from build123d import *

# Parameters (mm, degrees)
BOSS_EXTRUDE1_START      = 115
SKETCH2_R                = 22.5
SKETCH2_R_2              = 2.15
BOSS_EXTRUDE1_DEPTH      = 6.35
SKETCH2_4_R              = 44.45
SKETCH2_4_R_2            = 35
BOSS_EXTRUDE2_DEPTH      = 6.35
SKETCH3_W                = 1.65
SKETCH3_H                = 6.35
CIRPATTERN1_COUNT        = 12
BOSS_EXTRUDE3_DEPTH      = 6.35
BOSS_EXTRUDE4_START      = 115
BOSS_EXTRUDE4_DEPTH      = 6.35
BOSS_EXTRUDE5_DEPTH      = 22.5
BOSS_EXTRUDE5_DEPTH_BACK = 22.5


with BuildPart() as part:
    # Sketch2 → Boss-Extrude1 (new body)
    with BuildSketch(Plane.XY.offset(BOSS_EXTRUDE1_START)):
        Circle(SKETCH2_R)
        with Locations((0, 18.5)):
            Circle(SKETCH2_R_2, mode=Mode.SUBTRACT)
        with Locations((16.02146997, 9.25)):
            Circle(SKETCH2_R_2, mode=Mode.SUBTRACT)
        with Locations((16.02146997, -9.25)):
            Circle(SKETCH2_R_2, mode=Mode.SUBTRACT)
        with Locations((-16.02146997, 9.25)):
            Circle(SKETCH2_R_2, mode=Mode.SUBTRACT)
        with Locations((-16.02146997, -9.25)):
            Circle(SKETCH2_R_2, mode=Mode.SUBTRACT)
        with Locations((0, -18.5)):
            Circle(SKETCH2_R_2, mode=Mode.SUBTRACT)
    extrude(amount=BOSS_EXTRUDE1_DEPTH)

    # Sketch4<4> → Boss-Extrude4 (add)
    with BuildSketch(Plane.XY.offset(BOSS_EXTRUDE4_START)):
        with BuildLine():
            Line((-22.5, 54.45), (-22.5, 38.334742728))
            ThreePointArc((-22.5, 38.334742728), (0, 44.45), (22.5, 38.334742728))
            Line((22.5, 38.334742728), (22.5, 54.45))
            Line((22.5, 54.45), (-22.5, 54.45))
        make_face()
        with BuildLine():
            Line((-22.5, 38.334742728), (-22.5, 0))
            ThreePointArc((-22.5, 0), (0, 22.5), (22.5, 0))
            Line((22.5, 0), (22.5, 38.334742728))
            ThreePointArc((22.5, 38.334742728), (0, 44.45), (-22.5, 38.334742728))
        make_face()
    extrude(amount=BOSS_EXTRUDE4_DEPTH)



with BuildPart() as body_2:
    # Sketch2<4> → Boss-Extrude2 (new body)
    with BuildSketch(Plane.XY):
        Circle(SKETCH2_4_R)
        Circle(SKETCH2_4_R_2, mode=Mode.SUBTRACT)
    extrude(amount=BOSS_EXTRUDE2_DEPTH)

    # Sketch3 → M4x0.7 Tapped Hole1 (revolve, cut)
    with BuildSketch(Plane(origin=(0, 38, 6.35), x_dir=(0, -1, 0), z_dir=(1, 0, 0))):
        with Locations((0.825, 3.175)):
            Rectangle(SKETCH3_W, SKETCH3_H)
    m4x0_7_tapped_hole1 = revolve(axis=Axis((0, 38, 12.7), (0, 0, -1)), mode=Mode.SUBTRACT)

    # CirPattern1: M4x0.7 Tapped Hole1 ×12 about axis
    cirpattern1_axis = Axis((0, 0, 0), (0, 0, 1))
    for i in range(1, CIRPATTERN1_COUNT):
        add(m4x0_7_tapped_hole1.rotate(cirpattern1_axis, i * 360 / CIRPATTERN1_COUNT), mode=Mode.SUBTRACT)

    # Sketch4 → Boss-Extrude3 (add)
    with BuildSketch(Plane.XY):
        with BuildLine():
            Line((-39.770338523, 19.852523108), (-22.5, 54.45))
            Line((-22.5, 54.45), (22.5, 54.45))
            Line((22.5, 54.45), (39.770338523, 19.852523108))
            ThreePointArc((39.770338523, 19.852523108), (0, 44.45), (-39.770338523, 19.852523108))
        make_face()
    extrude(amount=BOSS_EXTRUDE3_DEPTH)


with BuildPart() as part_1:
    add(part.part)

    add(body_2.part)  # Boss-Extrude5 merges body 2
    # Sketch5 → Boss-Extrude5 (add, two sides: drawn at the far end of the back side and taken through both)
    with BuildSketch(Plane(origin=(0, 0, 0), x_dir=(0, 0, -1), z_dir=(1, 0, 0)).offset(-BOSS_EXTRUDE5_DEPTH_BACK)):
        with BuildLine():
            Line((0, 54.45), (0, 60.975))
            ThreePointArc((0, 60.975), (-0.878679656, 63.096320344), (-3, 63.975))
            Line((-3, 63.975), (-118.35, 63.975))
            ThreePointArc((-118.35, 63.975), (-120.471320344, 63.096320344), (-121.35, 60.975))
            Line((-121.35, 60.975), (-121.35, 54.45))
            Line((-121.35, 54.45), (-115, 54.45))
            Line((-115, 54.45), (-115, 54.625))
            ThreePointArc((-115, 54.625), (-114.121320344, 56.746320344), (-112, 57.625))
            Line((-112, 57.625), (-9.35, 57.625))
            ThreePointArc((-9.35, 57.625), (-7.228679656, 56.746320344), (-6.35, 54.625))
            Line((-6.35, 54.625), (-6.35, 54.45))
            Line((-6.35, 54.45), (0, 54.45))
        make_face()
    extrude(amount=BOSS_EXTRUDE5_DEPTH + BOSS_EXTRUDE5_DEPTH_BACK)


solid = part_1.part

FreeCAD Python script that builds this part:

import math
import FreeCAD as App
import Part
import Sketcher
from FreeCAD import Vector
Q = App.Units.Quantity


def add_polygon(sketch, points):
    """Adds a closed chain of lines whose ends are joined by coincident constraints."""
    first, n = sketch.GeometryCount, len(points)
    for a, b in zip(points, points[1:] + points[:1]):
        sketch.addGeometry(Part.LineSegment(App.Vector(*a, 0), App.Vector(*b, 0)), False)
    for i in range(n):
        sketch.addConstraint(Sketcher.Constraint("Coincident", first + i, 2, first + (i + 1) % n, 1))

doc = App.newDocument("Part")
body = doc.addObject("PartDesign::Body", "Body")

sketch1 = doc.addObject("Sketcher::SketchObject", "Sketch")
body.addObject(sketch1)
sketch1.AttachmentSupport = (doc.XY_Plane, [""])
sketch1.MapMode = "FlatFace"
sketch1.AttachmentOffset = App.Placement(Vector(0, 0, 115), App.Rotation())
sketch1.addGeometry(Part.Circle(Vector(0, 0, 0), Vector(0, 0, 1), 22.5), False)
sketch1.addGeometry(Part.Circle(Vector(-16, -9.2, 0), Vector(0, 0, 1), 2.1), False)
sketch1.addGeometry(Part.Circle(Vector(0, -18.5, 0), Vector(0, 0, 1), 2.1), False)
sketch1.addGeometry(Part.Circle(Vector(16, -9.2, 0), Vector(0, 0, 1), 2.1), False)
sketch1.addGeometry(Part.Circle(Vector(-16, 9.2, 0), Vector(0, 0, 1), 2.1), False)
sketch1.addGeometry(Part.Circle(Vector(16, 9.2, 0), Vector(0, 0, 1), 2.1), False)
sketch1.addGeometry(Part.Circle(Vector(0, 18.5, 0), Vector(0, 0, 1), 2.1), False)
sketch1.addConstraint(Sketcher.Constraint("Coincident", 0, 3, -1, 1))
sketch1.addConstraint(Sketcher.Constraint("Equal", 1, 2))
sketch1.addConstraint(Sketcher.Constraint("Equal", 2, 3))
sketch1.addConstraint(Sketcher.Constraint("Equal", 3, 4))
sketch1.addConstraint(Sketcher.Constraint("Equal", 4, 5))
sketch1.addConstraint(Sketcher.Constraint("Equal", 5, 6))
sketch1.addConstraint(Sketcher.Constraint("Symmetric", 3, 3, 4, 3, -1, 1))
sketch1.addConstraint(Sketcher.Constraint("Symmetric", 1, 3, 5, 3, -1, 1))
sketch1.addConstraint(Sketcher.Constraint("Symmetric", 2, 3, 6, 3, -1, 1))
sketch1.addConstraint(Sketcher.Constraint("Symmetric", 1, 3, 3, 3, -2))
sketch1.addConstraint(Sketcher.Constraint("PointOnObject", 2, 3, -2))
sketch1.addConstraint(Sketcher.Constraint("Diameter", 0, Q("45 mm")))
sketch1.addConstraint(Sketcher.Constraint("Diameter", 1, Q("4.3 mm")))
sketch1.addConstraint(Sketcher.Constraint("DistanceY", 2, 3, -1, 1, Q("18.5 mm")))
sketch1.addConstraint(Sketcher.Constraint("DistanceY", 1, 3, 4, 3, Q("18.5 mm")))
sketch1.addConstraint(Sketcher.Constraint("DistanceX", 1, 3, -1, 1, Q("16.02147 mm")))
pad1 = doc.addObject("PartDesign::Pad", "Pad")
body.addObject(pad1)
pad1.Profile = sketch1
pad1.Length = 6.35

sketch2 = doc.addObject("Sketcher::SketchObject", "Sketch001")
body.addObject(sketch2)
sketch2.AttachmentSupport = (doc.XY_Plane, [""])
sketch2.MapMode = "FlatFace"
sketch2.AttachmentOffset = App.Placement(Vector(0, 0, 115), App.Rotation())
sketch2.addGeometry(Part.LineSegment(Vector(-22, 54, 0), Vector(-22, 0, 0)), False)
sketch2.addGeometry(Part.ArcOfCircle(Part.Circle(Vector(0, 0, 0), Vector(0, 0, 1), 22), math.radians(0), math.radians(180)), False)
sketch2.addGeometry(Part.LineSegment(Vector(22, 0, 0), Vector(22, 54, 0)), False)
sketch2.addGeometry(Part.LineSegment(Vector(22, 54, 0), Vector(-22, 54, 0)), False)
sketch2.addConstraint(Sketcher.Constraint("Tangent", 0, 2, 1, 2))
sketch2.addConstraint(Sketcher.Constraint("Tangent", 1, 1, 2, 1))
sketch2.addConstraint(Sketcher.Constraint("Coincident", 2, 2, 3, 1))
sketch2.addConstraint(Sketcher.Constraint("Coincident", 3, 2, 0, 1))
sketch2.addConstraint(Sketcher.Constraint("Vertical", 0))
sketch2.addConstraint(Sketcher.Constraint("Vertical", 2))
sketch2.addConstraint(Sketcher.Constraint("Horizontal", 3))
sketch2.addConstraint(Sketcher.Constraint("Coincident", 1, 3, -1, 1))
sketch2.addConstraint(Sketcher.Constraint("Radius", 1, Q("22.5 mm")))
sketch2.addConstraint(Sketcher.Constraint("DistanceY", 0, 2, 0, 1, Q("54.45 mm")))
pad2 = doc.addObject("PartDesign::Pad", "Pad001")
body.addObject(pad2)
pad2.Profile = sketch2
pad2.Length = 6.35
body2 = doc.addObject("PartDesign::Body", "Body001")

sketch3 = doc.addObject("Sketcher::SketchObject", "Sketch002")
body2.addObject(sketch3)
sketch3.AttachmentSupport = (doc.getObject("XY_Plane001"), [""])
sketch3.MapMode = "FlatFace"
sketch3.addGeometry(Part.Circle(Vector(0, 0, 0), Vector(0, 0, 1), 44), False)
sketch3.addGeometry(Part.Circle(Vector(0, 0, 0), Vector(0, 0, 1), 35), False)
sketch3.addConstraint(Sketcher.Constraint("Coincident", 0, 3, -1, 1))
sketch3.addConstraint(Sketcher.Constraint("Coincident", 1, 3, -1, 1))
sketch3.addConstraint(Sketcher.Constraint("Diameter", 1, Q("70 mm")))
sketch3.addConstraint(Sketcher.Constraint("Diameter", 0, Q("88.9 mm")))
pad3 = doc.addObject("PartDesign::Pad", "Pad002")
body2.addObject(pad3)
pad3.Profile = sketch3
pad3.Length = 6.35

sketch4 = doc.addObject("Sketcher::SketchObject", "Sketch003")
body2.addObject(sketch4)
sketch4.AttachmentSupport = (doc.getObject("YZ_Plane001"), [""])
sketch4.MapMode = "FlatFace"
add_polygon(sketch4, [(38, 0), (38, 6.3), (36.4, 6.3), (36.4, 0)])
sketch4.addGeometry(Part.LineSegment(Vector(38, 6.3, 0), Vector(38, 0, 0)), True)
sketch4.addConstraint(Sketcher.Constraint("Vertical", 0))
sketch4.addConstraint(Sketcher.Constraint("Horizontal", 1))
sketch4.addConstraint(Sketcher.Constraint("Vertical", 2))
sketch4.addConstraint(Sketcher.Constraint("Horizontal", 3))
sketch4.addConstraint(Sketcher.Constraint("Vertical", 4))
sketch4.addConstraint(Sketcher.Constraint("Coincident", 4, 1, 0, 2))
sketch4.addConstraint(Sketcher.Constraint("PointOnObject", 2, 2, -1))
sketch4.addConstraint(Sketcher.Constraint("PointOnObject", 4, 2, -1))
sketch4.addConstraint(Sketcher.Constraint("DistanceX", -1, 1, 0, 2, Q("38 mm")))
sketch4.addConstraint(Sketcher.Constraint("DistanceX", 1, 2, 1, 1, Q("1.65 mm")))
sketch4.addConstraint(Sketcher.Constraint("DistanceY", 0, 1, 0, 2, Q("6.35 mm")))
groove = doc.addObject("PartDesign::Groove", "Groove")
body2.addObject(groove)
groove.Profile = sketch4
groove.ReferenceAxis = (sketch4, ["Axis0"])
groove.Angle = 360
doc.recompute()

polarpattern = doc.addObject("PartDesign::PolarPattern", "PolarPattern")
body2.addObject(polarpattern)
polarpattern.Originals = [groove]
polarpattern.Axis = (doc.getObject("Z_Axis001"), [""])
polarpattern.Angle = 360
polarpattern.Occurrences = 12
body2.Tip = polarpattern

sketch5 = doc.addObject("Sketcher::SketchObject", "Sketch004")
body2.addObject(sketch5)
sketch5.AttachmentSupport = (doc.getObject("XY_Plane001"), [""])
sketch5.MapMode = "FlatFace"
sketch5.addGeometry(Part.LineSegment(Vector(-22, 54, 0), Vector(-40, 20, 0)), False)
sketch5.addGeometry(Part.ArcOfCircle(Part.Circle(Vector(0, 0, 0), Vector(0, 0, 1), 44), math.radians(27), math.radians(153)), False)
sketch5.addGeometry(Part.LineSegment(Vector(40, 20, 0), Vector(22, 54, 0)), False)
sketch5.addGeometry(Part.LineSegment(Vector(22, 54, 0), Vector(-22, 54, 0)), False)
sketch5.addConstraint(Sketcher.Constraint("Tangent", 0, 2, 1, 2))
sketch5.addConstraint(Sketcher.Constraint("Tangent", 1, 1, 2, 1))
sketch5.addConstraint(Sketcher.Constraint("Coincident", 2, 2, 3, 1))
sketch5.addConstraint(Sketcher.Constraint("Coincident", 3, 2, 0, 1))
sketch5.addConstraint(Sketcher.Constraint("Horizontal", 3))
sketch5.addConstraint(Sketcher.Constraint("Coincident", 1, 3, -1, 1))
sketch5.addConstraint(Sketcher.Constraint("Horizontal", 0, 2, 1, 1))
sketch5.addConstraint(Sketcher.Constraint("DistanceX", 3, 2, 3, 1, Q("45 mm")))
sketch5.addConstraint(Sketcher.Constraint("Radius", 1, Q("44.45 mm")))
sketch5.addConstraint(Sketcher.Constraint("DistanceY", -1, 1, 2, 2, Q("54.45 mm")))
pad4 = doc.addObject("PartDesign::Pad", "Pad003")
body2.addObject(pad4)
pad4.Profile = sketch5
pad4.Length = 6.35
body.AllowCompound = True
doc.recompute()

boolean = doc.addObject("PartDesign::Boolean", "Boolean")
body.addObject(boolean)
boolean.Type = "Fuse"
boolean.addObjects([body2])

sketch6 = doc.addObject("Sketcher::SketchObject", "Sketch005")
body.addObject(sketch6)
sketch6.AttachmentSupport = (doc.YZ_Plane, [""])
sketch6.MapMode = "FlatFace"
sketch6.addGeometry(Part.LineSegment(Vector(54.45, 0, 0), Vector(60.98, 0, 0)), False)
sketch6.addGeometry(Part.ArcOfCircle(Part.Circle(Vector(60.98, 3, 0), Vector(0, 0, 1), 3), math.radians(-90), math.radians(0)), False)
sketch6.addGeometry(Part.LineSegment(Vector(63.98, 3, 0), Vector(63.98, 118.35, 0)), False)
sketch6.addGeometry(Part.ArcOfCircle(Part.Circle(Vector(60.98, 118.35, 0), Vector(0, 0, 1), 3), math.radians(0), math.radians(90)), False)
sketch6.addGeometry(Part.LineSegment(Vector(60.98, 121.35, 0), Vector(54.45, 121.35, 0)), False)
sketch6.addGeometry(Part.LineSegment(Vector(54.45, 121.35, 0), Vector(54.45, 115, 0)), False)
sketch6.addGeometry(Part.LineSegment(Vector(54.45, 115, 0), Vector(54.62, 115, 0)), False)
sketch6.addGeometry(Part.ArcOfCircle(Part.Circle(Vector(54.63, 112, 0), Vector(0, 0, 1), 3), math.radians(0), math.radians(90)), False)
sketch6.addGeometry(Part.LineSegment(Vector(57.62, 112, 0), Vector(57.62, 9.35, 0)), False)
sketch6.addGeometry(Part.ArcOfCircle(Part.Circle(Vector(54.63, 9.35, 0), Vector(0, 0, 1), 3), math.radians(-90), math.radians(0)), False)
sketch6.addGeometry(Part.LineSegment(Vector(54.62, 6.35, 0), Vector(54.45, 6.35, 0)), False)
sketch6.addGeometry(Part.LineSegment(Vector(54.45, 6.35, 0), Vector(54.45, 0, 0)), False)
sketch6.addConstraint(Sketcher.Constraint("Tangent", 0, 2, 1, 1))
sketch6.addConstraint(Sketcher.Constraint("Tangent", 1, 2, 2, 1))
sketch6.addConstraint(Sketcher.Constraint("Tangent", 2, 2, 3, 1))
sketch6.addConstraint(Sketcher.Constraint("Tangent", 3, 2, 4, 1))
sketch6.addConstraint(Sketcher.Constraint("Coincident", 4, 2, 5, 1))
sketch6.addConstraint(Sketcher.Constraint("Coincident", 5, 2, 6, 1))
sketch6.addConstraint(Sketcher.Constraint("Tangent", 6, 2, 7, 2))
sketch6.addConstraint(Sketcher.Constraint("Tangent", 7, 1, 8, 1))
sketch6.addConstraint(Sketcher.Constraint("Tangent", 8, 2, 9, 2))
sketch6.addConstraint(Sketcher.Constraint("Tangent", 9, 1, 10, 1))
sketch6.addConstraint(Sketcher.Constraint("Coincident", 10, 2, 11, 1))
sketch6.addConstraint(Sketcher.Constraint("Coincident", 11, 2, 0, 1))
sketch6.addConstraint(Sketcher.Constraint("Horizontal", 0))
sketch6.addConstraint(Sketcher.Constraint("Vertical", 2))
sketch6.addConstraint(Sketcher.Constraint("Horizontal", 4))
sketch6.addConstraint(Sketcher.Constraint("Vertical", 5))
sketch6.addConstraint(Sketcher.Constraint("Horizontal", 6))
sketch6.addConstraint(Sketcher.Constraint("Vertical", 8))
sketch6.addConstraint(Sketcher.Constraint("Horizontal", 10))
sketch6.addConstraint(Sketcher.Constraint("Vertical", 11))
sketch6.addConstraint(Sketcher.Constraint("Equal", 1, 3))
sketch6.addConstraint(Sketcher.Constraint("Equal", 3, 7))
sketch6.addConstraint(Sketcher.Constraint("Equal", 7, 9))
sketch6.addConstraint(Sketcher.Constraint("PointOnObject", 0, 2, -1))
sketch6.addConstraint(Sketcher.Constraint("Vertical", 5, 2, 10, 2))
sketch6.addConstraint(Sketcher.Constraint("Equal", 5, 11))
sketch6.addConstraint(Sketcher.Constraint("Radius", 1, Q("3 mm")))
sketch6.addConstraint(Sketcher.Constraint("DistanceY", -1, 1, 7, 3, Q("112 mm")))
sketch6.addConstraint(Sketcher.Constraint("DistanceY", 2, 1, 2, 2, Q("115.35 mm")))
sketch6.addConstraint(Sketcher.Constraint("DistanceX", 0, 1, 0, 2, Q("6.525 mm")))
sketch6.addConstraint(Sketcher.Constraint("DistanceX", 6, 1, 6, 2, Q("0.175 mm")))
sketch6.addConstraint(Sketcher.Constraint("DistanceX", -1, 1, 4, 2, Q("54.45 mm")))
pad5 = doc.addObject("PartDesign::Pad", "Pad004")
body.addObject(pad5)
pad5.Profile = sketch6
pad5.Type = "TwoLengths"
pad5.Length = 22.5
pad5.Length2 = 22.5

doc.recompute()
